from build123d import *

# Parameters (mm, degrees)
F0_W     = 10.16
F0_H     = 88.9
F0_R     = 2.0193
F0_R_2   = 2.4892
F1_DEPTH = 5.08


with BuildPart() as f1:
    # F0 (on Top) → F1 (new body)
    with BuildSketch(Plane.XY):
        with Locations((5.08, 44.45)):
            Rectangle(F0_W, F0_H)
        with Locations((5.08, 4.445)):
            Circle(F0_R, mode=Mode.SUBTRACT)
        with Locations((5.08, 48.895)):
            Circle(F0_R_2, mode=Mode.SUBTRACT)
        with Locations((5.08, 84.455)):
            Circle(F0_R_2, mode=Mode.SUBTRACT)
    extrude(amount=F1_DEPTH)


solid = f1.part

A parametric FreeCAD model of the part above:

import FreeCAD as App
import Part
import Sketcher
Q = App.Units.Quantity


def add_polygon(sketch, points):
    """Adds a closed chain of lines whose ends are joined by coincident constraints."""
    first, n = sketch.GeometryCount, len(points)
    for a, b in zip(points, points[1:] + points[:1]):
        sketch.addGeometry(Part.LineSegment(App.Vector(*a, 0), App.Vector(*b, 0)), False)
    for i in range(n):
        sketch.addConstraint(Sketcher.Constraint("Coincident", first + i, 2, first + (i + 1) % n, 1))

doc = App.newDocument("Part")
body = doc.addObject("PartDesign::Body", "Body")

# Sketch on XY plane
sketch1 = body.newObject("Sketcher::SketchObject", "Sketch")
sketch1.AttachmentSupport = (doc.getObject("XY_Plane"), [""])
sketch1.MapMode = "FlatFace"
add_polygon(sketch1, [(0, 88.9), (0, 0), (10.2, 0), (10.2, 88.9)])  # lines 0-3
sketch1.addGeometry(Part.Circle(App.Vector(5.1, 4.4, 0), App.Vector(0, 0, 1), 2), False)  # 4
sketch1.addGeometry(Part.Circle(App.Vector(5.1, 48.9, 0), App.Vector(0, 0, 1), 2.5), False)  # 5
sketch1.addGeometry(Part.Circle(App.Vector(5.1, 84.5, 0), App.Vector(0, 0, 1), 2.5), False)  # 6
sketch1.addConstraint([
    Sketcher.Constraint("Vertical", 0),
    Sketcher.Constraint("Horizontal", 1),
    Sketcher.Constraint("Vertical", 2),
    Sketcher.Constraint("Horizontal", 3),
    Sketcher.Constraint("Coincident", 0, 2, -1, 1),
    Sketcher.Constraint("Equal", 5, 6),
    Sketcher.Constraint("Vertical", 4, 3, 5, 3),
    Sketcher.Constraint("Vertical", 5, 3, 6, 3),
    Sketcher.Constraint("Diameter", 4, Q("0.159 in")),
    Sketcher.Constraint("Diameter", 5, Q("0.196 in")),
    Sketcher.Constraint("DistanceX", 1, 1, 1, 2, Q("0.4 in")),
    Sketcher.Constraint("DistanceY", 0, 2, 0, 1, Q("3.5 in")),
    Sketcher.Constraint("DistanceX", -1, 1, 4, 3, Q("0.2 in")),
    Sketcher.Constraint("DistanceY", 5, 3, 6, 3, Q("1.4 in")),
    Sketcher.Constraint("DistanceY", 4, 3, 5, 3, Q("1.75 in")),
    Sketcher.Constraint("DistanceY", -1, 1, 4, 3, Q("0.175 in")),
])
pad1 = body.newObject("PartDesign::Pad", "Pad")
pad1.Profile = sketch1
pad1.Length = Q("0.2 in")

doc.recompute()
